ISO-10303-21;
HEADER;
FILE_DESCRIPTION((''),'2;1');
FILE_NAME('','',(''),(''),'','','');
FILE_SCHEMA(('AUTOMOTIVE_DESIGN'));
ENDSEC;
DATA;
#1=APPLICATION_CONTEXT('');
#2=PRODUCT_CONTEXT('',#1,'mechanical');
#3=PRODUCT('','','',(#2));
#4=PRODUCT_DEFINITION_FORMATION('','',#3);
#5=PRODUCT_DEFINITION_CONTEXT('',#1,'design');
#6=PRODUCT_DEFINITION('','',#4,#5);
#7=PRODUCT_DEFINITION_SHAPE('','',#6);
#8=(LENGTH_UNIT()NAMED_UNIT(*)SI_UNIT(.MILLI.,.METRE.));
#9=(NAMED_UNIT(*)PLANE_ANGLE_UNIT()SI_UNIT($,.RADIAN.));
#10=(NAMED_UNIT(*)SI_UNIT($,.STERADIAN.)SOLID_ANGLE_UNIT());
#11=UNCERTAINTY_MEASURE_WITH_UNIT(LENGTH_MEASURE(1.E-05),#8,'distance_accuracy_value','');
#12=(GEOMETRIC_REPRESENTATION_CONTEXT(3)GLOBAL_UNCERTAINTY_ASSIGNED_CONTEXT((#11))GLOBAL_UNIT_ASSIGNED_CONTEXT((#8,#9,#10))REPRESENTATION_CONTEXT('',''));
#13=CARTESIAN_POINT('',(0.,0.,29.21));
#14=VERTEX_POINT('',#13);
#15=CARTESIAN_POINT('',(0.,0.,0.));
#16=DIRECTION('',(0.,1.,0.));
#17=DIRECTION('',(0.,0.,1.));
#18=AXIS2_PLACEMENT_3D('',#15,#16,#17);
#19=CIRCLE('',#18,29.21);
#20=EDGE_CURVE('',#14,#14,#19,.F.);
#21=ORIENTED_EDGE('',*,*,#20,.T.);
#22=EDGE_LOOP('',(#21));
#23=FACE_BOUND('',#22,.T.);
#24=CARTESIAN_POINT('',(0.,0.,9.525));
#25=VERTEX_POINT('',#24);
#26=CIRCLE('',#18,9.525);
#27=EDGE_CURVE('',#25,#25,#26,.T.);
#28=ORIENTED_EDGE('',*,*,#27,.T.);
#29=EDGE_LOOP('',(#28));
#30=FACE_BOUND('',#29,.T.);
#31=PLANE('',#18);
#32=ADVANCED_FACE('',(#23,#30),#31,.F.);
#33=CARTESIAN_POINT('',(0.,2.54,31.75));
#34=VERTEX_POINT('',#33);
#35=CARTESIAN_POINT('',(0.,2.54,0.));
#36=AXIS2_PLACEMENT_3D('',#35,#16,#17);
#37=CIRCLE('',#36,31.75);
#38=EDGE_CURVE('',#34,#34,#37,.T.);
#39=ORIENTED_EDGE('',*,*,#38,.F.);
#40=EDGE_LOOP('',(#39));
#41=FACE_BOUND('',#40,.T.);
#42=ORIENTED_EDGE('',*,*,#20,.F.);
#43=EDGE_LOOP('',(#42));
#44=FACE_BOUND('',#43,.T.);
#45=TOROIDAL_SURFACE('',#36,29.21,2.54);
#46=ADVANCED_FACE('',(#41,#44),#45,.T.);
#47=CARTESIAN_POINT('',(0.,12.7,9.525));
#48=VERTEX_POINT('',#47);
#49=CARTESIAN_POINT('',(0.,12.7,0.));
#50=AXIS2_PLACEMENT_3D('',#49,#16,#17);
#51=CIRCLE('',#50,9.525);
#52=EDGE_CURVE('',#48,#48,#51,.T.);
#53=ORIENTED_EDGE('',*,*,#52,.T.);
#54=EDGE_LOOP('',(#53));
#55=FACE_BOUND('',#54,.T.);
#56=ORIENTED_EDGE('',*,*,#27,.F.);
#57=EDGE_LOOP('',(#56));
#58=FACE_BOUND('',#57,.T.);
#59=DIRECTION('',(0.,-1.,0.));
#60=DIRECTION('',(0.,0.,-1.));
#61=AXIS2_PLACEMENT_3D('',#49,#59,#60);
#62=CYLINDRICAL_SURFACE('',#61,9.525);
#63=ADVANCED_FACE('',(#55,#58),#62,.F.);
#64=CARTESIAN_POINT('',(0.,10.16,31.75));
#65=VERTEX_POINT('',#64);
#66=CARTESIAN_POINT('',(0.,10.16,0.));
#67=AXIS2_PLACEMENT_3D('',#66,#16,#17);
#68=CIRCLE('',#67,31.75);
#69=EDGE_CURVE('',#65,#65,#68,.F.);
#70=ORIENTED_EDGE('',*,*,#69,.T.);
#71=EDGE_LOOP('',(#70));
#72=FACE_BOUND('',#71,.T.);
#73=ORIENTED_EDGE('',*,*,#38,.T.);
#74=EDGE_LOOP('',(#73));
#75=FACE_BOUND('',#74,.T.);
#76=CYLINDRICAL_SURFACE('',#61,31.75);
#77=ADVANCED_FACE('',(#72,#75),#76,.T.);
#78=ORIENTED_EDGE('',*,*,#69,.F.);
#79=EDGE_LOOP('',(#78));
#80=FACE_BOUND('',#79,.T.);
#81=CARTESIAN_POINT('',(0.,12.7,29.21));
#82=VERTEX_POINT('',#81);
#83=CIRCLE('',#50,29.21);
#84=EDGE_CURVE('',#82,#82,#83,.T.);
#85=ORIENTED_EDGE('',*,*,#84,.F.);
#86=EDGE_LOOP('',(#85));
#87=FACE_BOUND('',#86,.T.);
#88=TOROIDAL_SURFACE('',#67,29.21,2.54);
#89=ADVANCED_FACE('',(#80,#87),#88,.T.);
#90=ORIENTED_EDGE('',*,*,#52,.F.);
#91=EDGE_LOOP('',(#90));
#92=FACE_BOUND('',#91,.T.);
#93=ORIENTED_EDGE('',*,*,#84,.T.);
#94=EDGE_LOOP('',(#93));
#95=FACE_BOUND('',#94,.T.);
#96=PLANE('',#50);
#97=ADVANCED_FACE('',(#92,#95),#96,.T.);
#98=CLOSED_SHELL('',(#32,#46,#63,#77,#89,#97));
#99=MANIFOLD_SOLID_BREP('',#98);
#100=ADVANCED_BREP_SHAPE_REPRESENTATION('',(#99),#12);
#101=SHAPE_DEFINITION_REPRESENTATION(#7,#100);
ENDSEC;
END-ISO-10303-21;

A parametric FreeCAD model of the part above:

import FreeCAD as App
import Part
import Sketcher
from FreeCAD import Vector
Q = App.Units.Quantity


def edges_at(feature, points):
    """Names of the edges that pass closest to the given points."""
    edges = feature.Shape.Edges
    near = lambda p: min(range(len(edges)), key=lambda i: edges[i].distToShape(Part.Vertex(*p))[0])
    return sorted({f"Edge{near(p) + 1}" for p in points})

doc = App.newDocument("Part")
body = doc.addObject("PartDesign::Body", "Body")

# Sketch on XZ plane
sketch1 = body.newObject("Sketcher::SketchObject", "Sketch")
sketch1.AttachmentSupport = (doc.getObject("XZ_Plane"), [""])
sketch1.MapMode = "FlatFace"
sketch1.addGeometry([
    Part.Circle(Vector(0, 0, 0), Vector(0, 0, 1), 32),
    Part.Circle(Vector(0, 0, 0), Vector(0, 0, 1), 10),
], False)
sketch1.addConstraint([
    Sketcher.Constraint("Coincident", 0, 3, -1, 1),
    Sketcher.Constraint("Coincident", 1, 3, -1, 1),
    Sketcher.Constraint("Diameter", 0, Q("2.5 in")),
    Sketcher.Constraint("Diameter", 1, Q("0.75 in")),
])
pad1 = body.newObject("PartDesign::Pad", "Pad")
pad1.Profile = sketch1
pad1.Length = Q("0.5 in")
pad1.Reversed = True
doc.recompute()

fillet = body.newObject("PartDesign::Fillet", "Fillet")
fillet.Base = (pad1, edges_at(pad1, [(0, 0, -31.75), (0, 12.7, -31.75)]))
fillet.Radius = Q("0.1 in")

doc.recompute()
